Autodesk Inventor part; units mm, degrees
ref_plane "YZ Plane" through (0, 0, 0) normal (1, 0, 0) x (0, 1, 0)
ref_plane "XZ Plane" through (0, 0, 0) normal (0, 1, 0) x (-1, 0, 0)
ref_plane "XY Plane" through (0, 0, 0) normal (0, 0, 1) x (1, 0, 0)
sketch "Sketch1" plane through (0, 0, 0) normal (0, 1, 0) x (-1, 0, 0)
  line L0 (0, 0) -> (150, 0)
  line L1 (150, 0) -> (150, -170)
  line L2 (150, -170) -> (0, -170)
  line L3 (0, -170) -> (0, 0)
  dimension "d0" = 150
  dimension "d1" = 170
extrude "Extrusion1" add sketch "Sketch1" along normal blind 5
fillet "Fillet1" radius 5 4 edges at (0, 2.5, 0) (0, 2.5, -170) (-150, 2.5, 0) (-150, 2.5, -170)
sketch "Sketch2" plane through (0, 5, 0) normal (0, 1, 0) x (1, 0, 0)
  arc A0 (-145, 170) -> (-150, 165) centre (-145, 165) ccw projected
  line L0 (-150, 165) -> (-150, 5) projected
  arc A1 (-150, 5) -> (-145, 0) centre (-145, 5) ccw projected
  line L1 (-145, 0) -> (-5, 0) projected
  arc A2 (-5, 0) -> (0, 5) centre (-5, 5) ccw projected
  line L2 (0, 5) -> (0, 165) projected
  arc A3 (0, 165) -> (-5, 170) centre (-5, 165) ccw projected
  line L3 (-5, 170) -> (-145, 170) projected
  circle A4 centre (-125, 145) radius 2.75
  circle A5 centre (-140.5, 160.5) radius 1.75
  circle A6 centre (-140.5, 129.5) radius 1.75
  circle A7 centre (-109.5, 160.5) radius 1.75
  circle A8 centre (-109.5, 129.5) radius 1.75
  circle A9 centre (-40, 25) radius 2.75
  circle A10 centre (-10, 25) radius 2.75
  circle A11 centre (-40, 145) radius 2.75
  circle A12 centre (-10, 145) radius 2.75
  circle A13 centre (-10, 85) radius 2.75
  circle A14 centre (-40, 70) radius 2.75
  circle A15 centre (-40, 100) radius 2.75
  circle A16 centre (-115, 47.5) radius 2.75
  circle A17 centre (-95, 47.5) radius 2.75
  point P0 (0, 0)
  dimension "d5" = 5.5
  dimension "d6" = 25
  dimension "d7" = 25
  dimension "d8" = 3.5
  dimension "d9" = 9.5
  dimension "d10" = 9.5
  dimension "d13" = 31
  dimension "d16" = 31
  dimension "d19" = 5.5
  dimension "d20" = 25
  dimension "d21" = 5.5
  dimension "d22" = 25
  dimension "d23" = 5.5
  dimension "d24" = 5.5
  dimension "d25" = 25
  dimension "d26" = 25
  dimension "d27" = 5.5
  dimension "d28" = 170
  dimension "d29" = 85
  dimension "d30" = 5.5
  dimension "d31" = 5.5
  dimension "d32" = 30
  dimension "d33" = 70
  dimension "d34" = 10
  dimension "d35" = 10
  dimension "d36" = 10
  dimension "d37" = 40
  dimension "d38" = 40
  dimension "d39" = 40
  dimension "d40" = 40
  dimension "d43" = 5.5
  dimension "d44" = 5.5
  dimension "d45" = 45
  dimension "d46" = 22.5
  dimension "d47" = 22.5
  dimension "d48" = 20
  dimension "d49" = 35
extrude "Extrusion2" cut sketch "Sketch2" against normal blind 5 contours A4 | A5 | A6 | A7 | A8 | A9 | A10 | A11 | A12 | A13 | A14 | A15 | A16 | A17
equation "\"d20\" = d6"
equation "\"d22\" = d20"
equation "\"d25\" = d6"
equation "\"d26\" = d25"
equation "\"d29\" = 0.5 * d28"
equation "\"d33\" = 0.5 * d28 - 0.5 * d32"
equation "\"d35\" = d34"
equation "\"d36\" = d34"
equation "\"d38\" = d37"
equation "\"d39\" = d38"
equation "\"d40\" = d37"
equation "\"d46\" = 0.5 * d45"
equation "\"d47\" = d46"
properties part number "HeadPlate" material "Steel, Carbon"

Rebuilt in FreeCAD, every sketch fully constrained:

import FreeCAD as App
import Part
import Sketcher
from FreeCAD import Vector


def edges_at(feature, points):
    """Names of the edges that pass closest to the given points."""
    edges = feature.Shape.Edges
    near = lambda p: min(range(len(edges)), key=lambda i: edges[i].distToShape(Part.Vertex(*p))[0])
    return sorted({f"Edge{near(p) + 1}" for p in points})


def add_polygon(sketch, points):
    """Adds a closed chain of lines whose ends are joined by coincident constraints."""
    first, n = sketch.GeometryCount, len(points)
    for a, b in zip(points, points[1:] + points[:1]):
        sketch.addGeometry(Part.LineSegment(App.Vector(*a, 0), App.Vector(*b, 0)), False)
    for i in range(n):
        sketch.addConstraint(Sketcher.Constraint("Coincident", first + i, 2, first + (i + 1) % n, 1))

doc = App.newDocument("Part")
body = doc.addObject("PartDesign::Body", "Body")

# Sketch on XZ plane
sketch1 = body.newObject("Sketcher::SketchObject", "Sketch")
sketch1.AttachmentSupport = (doc.getObject("XZ_Plane"), [""])
sketch1.MapMode = "FlatFace"
add_polygon(sketch1, [(-150, 0), (0, 0), (0, -170), (-150, -170)])  # lines 0-3
sketch1.addConstraint([
    Sketcher.Constraint("Horizontal", 0),
    Sketcher.Constraint("Vertical", 1),
    Sketcher.Constraint("Horizontal", 2),
    Sketcher.Constraint("Vertical", 3),
    Sketcher.Constraint("Coincident", 0, 2, -1, 1),
    Sketcher.Constraint("DistanceX", 0, 1, 0, 2, 150.0),
    Sketcher.Constraint("DistanceY", 1, 2, 1, 1, 170.0),
])
pad1 = body.newObject("PartDesign::Pad", "Pad")
pad1.Profile = sketch1
pad1.Length = 5
pad1.Reversed = True
doc.recompute()

fillet = body.newObject("PartDesign::Fillet", "Fillet")
fillet.Base = (pad1, edges_at(pad1, [
    (0, 2.5, 0),
    (0, 2.5, -170),
    (-150, 2.5, 0),
    (-150, 2.5, -170),
]))
fillet.Radius = 5

# Sketch on XZ plane
sketch2 = body.newObject("Sketcher::SketchObject", "Sketch001")
sketch2.AttachmentSupport = (doc.getObject("XZ_Plane"), [""])
sketch2.MapMode = "FlatFace"
sketch2.AttachmentOffset = App.Placement(Vector(0, 0, -5), App.Rotation())
sketch2.addGeometry([
    Part.Circle(Vector(-125, -145, 0), Vector(0, 0, 1), 2.8),  # 0
    Part.Circle(Vector(-140.5, -160.5, 0), Vector(0, 0, 1), 1.8),  # 1
    Part.Circle(Vector(-140.5, -129.5, 0), Vector(0, 0, 1), 1.8),  # 2
    Part.Circle(Vector(-109.5, -160.5, 0), Vector(0, 0, 1), 1.8),  # 3
    Part.Circle(Vector(-109.5, -129.5, 0), Vector(0, 0, 1), 1.8),  # 4
    Part.Circle(Vector(-40, -25, 0), Vector(0, 0, 1), 2.8),  # 5
    Part.Circle(Vector(-10, -25, 0), Vector(0, 0, 1), 2.8),  # 6
    Part.Circle(Vector(-40, -145, 0), Vector(0, 0, 1), 2.8),  # 7
    Part.Circle(Vector(-10, -145, 0), Vector(0, 0, 1), 2.8),  # 8
    Part.Circle(Vector(-10, -85, 0), Vector(0, 0, 1), 2.8),  # 9
    Part.Circle(Vector(-40, -70, 0), Vector(0, 0, 1), 2.8),  # 10
    Part.Circle(Vector(-40, -100, 0), Vector(0, 0, 1), 2.8),  # 11
    Part.Circle(Vector(-115, -47.5, 0), Vector(0, 0, 1), 2.8),  # 12
    Part.Circle(Vector(-95, -47.5, 0), Vector(0, 0, 1), 2.8),  # 13
], False)
sketch2.addConstraint([
    Sketcher.Constraint("Equal", 1, 2),
    Sketcher.Constraint("Equal", 2, 3),
    Sketcher.Constraint("Equal", 3, 4),
    Sketcher.Constraint("Equal", 0, 5),
    Sketcher.Constraint("Equal", 5, 6),
    Sketcher.Constraint("Equal", 6, 7),
    Sketcher.Constraint("Equal", 7, 8),
    Sketcher.Constraint("Equal", 8, 9),
    Sketcher.Constraint("Equal", 9, 10),
    Sketcher.Constraint("Equal", 10, 11),
    Sketcher.Constraint("Equal", 11, 12),
    Sketcher.Constraint("Equal", 12, 13),
    Sketcher.Constraint("Horizontal", 1, 3, 3, 3),
    Sketcher.Constraint("Horizontal", 2, 3, 4, 3),
    Sketcher.Constraint("Horizontal", 5, 3, 6, 3),
    Sketcher.Constraint("Horizontal", 0, 3, 7, 3),
    Sketcher.Constraint("Horizontal", 7, 3, 8, 3),
    Sketcher.Constraint("Horizontal", 12, 3, 13, 3),
    Sketcher.Constraint("Vertical", 1, 3, 2, 3),
    Sketcher.Constraint("Vertical", 3, 3, 4, 3),
    Sketcher.Constraint("Vertical", 5, 3, 7, 3),
    Sketcher.Constraint("Vertical", 6, 3, 8, 3),
    Sketcher.Constraint("Vertical", 8, 3, 9, 3),
    Sketcher.Constraint("Vertical", 7, 3, 10, 3),
    Sketcher.Constraint("Vertical", 10, 3, 11, 3),
    Sketcher.Constraint("Diameter", 0, 5.5),
    Sketcher.Constraint("Diameter", 1, 3.5),
    Sketcher.Constraint("DistanceX", 5, 3, -1, 1, 40.0),
    Sketcher.Constraint("DistanceY", 5, 3, -1, 1, 25.0),
    Sketcher.Constraint("DistanceX", 6, 3, -1, 1, 10.0),
    Sketcher.Constraint("DistanceY", 9, 3, -1, 1, 85.0),
    Sketcher.Constraint("DistanceY", 10, 3, -1, 1, 70.0),
    Sketcher.Constraint("DistanceY", 1, 3, 2, 3, 31.0),
    Sketcher.Constraint("DistanceX", 1, 3, 3, 3, 31.0),
    Sketcher.Constraint("DistanceX", 0, 3, 5, 3, 85.0),
    Sketcher.Constraint("DistanceY", 11, 3, 10, 3, 30.0),
    Sketcher.Constraint("DistanceY", 7, 3, 11, 3, 45.0),
    Sketcher.Constraint("DistanceX", 12, 3, 13, 3, 20.0),
    Sketcher.Constraint("DistanceY", 12, 3, 5, 3, 22.5),
    Sketcher.Constraint("DistanceX", 12, 3, 4, 3, 5.5),
    Sketcher.Constraint("DistanceX", 12, 3, -1, 1, 115.0),
    Sketcher.Constraint("DistanceY", 4, 3, 12, 3, 82.0),
])
pocket1 = body.newObject("PartDesign::Pocket", "Pocket")
pocket1.Profile = sketch2
pocket1.Length = 5
pocket1.Reversed = True

doc.recompute()
